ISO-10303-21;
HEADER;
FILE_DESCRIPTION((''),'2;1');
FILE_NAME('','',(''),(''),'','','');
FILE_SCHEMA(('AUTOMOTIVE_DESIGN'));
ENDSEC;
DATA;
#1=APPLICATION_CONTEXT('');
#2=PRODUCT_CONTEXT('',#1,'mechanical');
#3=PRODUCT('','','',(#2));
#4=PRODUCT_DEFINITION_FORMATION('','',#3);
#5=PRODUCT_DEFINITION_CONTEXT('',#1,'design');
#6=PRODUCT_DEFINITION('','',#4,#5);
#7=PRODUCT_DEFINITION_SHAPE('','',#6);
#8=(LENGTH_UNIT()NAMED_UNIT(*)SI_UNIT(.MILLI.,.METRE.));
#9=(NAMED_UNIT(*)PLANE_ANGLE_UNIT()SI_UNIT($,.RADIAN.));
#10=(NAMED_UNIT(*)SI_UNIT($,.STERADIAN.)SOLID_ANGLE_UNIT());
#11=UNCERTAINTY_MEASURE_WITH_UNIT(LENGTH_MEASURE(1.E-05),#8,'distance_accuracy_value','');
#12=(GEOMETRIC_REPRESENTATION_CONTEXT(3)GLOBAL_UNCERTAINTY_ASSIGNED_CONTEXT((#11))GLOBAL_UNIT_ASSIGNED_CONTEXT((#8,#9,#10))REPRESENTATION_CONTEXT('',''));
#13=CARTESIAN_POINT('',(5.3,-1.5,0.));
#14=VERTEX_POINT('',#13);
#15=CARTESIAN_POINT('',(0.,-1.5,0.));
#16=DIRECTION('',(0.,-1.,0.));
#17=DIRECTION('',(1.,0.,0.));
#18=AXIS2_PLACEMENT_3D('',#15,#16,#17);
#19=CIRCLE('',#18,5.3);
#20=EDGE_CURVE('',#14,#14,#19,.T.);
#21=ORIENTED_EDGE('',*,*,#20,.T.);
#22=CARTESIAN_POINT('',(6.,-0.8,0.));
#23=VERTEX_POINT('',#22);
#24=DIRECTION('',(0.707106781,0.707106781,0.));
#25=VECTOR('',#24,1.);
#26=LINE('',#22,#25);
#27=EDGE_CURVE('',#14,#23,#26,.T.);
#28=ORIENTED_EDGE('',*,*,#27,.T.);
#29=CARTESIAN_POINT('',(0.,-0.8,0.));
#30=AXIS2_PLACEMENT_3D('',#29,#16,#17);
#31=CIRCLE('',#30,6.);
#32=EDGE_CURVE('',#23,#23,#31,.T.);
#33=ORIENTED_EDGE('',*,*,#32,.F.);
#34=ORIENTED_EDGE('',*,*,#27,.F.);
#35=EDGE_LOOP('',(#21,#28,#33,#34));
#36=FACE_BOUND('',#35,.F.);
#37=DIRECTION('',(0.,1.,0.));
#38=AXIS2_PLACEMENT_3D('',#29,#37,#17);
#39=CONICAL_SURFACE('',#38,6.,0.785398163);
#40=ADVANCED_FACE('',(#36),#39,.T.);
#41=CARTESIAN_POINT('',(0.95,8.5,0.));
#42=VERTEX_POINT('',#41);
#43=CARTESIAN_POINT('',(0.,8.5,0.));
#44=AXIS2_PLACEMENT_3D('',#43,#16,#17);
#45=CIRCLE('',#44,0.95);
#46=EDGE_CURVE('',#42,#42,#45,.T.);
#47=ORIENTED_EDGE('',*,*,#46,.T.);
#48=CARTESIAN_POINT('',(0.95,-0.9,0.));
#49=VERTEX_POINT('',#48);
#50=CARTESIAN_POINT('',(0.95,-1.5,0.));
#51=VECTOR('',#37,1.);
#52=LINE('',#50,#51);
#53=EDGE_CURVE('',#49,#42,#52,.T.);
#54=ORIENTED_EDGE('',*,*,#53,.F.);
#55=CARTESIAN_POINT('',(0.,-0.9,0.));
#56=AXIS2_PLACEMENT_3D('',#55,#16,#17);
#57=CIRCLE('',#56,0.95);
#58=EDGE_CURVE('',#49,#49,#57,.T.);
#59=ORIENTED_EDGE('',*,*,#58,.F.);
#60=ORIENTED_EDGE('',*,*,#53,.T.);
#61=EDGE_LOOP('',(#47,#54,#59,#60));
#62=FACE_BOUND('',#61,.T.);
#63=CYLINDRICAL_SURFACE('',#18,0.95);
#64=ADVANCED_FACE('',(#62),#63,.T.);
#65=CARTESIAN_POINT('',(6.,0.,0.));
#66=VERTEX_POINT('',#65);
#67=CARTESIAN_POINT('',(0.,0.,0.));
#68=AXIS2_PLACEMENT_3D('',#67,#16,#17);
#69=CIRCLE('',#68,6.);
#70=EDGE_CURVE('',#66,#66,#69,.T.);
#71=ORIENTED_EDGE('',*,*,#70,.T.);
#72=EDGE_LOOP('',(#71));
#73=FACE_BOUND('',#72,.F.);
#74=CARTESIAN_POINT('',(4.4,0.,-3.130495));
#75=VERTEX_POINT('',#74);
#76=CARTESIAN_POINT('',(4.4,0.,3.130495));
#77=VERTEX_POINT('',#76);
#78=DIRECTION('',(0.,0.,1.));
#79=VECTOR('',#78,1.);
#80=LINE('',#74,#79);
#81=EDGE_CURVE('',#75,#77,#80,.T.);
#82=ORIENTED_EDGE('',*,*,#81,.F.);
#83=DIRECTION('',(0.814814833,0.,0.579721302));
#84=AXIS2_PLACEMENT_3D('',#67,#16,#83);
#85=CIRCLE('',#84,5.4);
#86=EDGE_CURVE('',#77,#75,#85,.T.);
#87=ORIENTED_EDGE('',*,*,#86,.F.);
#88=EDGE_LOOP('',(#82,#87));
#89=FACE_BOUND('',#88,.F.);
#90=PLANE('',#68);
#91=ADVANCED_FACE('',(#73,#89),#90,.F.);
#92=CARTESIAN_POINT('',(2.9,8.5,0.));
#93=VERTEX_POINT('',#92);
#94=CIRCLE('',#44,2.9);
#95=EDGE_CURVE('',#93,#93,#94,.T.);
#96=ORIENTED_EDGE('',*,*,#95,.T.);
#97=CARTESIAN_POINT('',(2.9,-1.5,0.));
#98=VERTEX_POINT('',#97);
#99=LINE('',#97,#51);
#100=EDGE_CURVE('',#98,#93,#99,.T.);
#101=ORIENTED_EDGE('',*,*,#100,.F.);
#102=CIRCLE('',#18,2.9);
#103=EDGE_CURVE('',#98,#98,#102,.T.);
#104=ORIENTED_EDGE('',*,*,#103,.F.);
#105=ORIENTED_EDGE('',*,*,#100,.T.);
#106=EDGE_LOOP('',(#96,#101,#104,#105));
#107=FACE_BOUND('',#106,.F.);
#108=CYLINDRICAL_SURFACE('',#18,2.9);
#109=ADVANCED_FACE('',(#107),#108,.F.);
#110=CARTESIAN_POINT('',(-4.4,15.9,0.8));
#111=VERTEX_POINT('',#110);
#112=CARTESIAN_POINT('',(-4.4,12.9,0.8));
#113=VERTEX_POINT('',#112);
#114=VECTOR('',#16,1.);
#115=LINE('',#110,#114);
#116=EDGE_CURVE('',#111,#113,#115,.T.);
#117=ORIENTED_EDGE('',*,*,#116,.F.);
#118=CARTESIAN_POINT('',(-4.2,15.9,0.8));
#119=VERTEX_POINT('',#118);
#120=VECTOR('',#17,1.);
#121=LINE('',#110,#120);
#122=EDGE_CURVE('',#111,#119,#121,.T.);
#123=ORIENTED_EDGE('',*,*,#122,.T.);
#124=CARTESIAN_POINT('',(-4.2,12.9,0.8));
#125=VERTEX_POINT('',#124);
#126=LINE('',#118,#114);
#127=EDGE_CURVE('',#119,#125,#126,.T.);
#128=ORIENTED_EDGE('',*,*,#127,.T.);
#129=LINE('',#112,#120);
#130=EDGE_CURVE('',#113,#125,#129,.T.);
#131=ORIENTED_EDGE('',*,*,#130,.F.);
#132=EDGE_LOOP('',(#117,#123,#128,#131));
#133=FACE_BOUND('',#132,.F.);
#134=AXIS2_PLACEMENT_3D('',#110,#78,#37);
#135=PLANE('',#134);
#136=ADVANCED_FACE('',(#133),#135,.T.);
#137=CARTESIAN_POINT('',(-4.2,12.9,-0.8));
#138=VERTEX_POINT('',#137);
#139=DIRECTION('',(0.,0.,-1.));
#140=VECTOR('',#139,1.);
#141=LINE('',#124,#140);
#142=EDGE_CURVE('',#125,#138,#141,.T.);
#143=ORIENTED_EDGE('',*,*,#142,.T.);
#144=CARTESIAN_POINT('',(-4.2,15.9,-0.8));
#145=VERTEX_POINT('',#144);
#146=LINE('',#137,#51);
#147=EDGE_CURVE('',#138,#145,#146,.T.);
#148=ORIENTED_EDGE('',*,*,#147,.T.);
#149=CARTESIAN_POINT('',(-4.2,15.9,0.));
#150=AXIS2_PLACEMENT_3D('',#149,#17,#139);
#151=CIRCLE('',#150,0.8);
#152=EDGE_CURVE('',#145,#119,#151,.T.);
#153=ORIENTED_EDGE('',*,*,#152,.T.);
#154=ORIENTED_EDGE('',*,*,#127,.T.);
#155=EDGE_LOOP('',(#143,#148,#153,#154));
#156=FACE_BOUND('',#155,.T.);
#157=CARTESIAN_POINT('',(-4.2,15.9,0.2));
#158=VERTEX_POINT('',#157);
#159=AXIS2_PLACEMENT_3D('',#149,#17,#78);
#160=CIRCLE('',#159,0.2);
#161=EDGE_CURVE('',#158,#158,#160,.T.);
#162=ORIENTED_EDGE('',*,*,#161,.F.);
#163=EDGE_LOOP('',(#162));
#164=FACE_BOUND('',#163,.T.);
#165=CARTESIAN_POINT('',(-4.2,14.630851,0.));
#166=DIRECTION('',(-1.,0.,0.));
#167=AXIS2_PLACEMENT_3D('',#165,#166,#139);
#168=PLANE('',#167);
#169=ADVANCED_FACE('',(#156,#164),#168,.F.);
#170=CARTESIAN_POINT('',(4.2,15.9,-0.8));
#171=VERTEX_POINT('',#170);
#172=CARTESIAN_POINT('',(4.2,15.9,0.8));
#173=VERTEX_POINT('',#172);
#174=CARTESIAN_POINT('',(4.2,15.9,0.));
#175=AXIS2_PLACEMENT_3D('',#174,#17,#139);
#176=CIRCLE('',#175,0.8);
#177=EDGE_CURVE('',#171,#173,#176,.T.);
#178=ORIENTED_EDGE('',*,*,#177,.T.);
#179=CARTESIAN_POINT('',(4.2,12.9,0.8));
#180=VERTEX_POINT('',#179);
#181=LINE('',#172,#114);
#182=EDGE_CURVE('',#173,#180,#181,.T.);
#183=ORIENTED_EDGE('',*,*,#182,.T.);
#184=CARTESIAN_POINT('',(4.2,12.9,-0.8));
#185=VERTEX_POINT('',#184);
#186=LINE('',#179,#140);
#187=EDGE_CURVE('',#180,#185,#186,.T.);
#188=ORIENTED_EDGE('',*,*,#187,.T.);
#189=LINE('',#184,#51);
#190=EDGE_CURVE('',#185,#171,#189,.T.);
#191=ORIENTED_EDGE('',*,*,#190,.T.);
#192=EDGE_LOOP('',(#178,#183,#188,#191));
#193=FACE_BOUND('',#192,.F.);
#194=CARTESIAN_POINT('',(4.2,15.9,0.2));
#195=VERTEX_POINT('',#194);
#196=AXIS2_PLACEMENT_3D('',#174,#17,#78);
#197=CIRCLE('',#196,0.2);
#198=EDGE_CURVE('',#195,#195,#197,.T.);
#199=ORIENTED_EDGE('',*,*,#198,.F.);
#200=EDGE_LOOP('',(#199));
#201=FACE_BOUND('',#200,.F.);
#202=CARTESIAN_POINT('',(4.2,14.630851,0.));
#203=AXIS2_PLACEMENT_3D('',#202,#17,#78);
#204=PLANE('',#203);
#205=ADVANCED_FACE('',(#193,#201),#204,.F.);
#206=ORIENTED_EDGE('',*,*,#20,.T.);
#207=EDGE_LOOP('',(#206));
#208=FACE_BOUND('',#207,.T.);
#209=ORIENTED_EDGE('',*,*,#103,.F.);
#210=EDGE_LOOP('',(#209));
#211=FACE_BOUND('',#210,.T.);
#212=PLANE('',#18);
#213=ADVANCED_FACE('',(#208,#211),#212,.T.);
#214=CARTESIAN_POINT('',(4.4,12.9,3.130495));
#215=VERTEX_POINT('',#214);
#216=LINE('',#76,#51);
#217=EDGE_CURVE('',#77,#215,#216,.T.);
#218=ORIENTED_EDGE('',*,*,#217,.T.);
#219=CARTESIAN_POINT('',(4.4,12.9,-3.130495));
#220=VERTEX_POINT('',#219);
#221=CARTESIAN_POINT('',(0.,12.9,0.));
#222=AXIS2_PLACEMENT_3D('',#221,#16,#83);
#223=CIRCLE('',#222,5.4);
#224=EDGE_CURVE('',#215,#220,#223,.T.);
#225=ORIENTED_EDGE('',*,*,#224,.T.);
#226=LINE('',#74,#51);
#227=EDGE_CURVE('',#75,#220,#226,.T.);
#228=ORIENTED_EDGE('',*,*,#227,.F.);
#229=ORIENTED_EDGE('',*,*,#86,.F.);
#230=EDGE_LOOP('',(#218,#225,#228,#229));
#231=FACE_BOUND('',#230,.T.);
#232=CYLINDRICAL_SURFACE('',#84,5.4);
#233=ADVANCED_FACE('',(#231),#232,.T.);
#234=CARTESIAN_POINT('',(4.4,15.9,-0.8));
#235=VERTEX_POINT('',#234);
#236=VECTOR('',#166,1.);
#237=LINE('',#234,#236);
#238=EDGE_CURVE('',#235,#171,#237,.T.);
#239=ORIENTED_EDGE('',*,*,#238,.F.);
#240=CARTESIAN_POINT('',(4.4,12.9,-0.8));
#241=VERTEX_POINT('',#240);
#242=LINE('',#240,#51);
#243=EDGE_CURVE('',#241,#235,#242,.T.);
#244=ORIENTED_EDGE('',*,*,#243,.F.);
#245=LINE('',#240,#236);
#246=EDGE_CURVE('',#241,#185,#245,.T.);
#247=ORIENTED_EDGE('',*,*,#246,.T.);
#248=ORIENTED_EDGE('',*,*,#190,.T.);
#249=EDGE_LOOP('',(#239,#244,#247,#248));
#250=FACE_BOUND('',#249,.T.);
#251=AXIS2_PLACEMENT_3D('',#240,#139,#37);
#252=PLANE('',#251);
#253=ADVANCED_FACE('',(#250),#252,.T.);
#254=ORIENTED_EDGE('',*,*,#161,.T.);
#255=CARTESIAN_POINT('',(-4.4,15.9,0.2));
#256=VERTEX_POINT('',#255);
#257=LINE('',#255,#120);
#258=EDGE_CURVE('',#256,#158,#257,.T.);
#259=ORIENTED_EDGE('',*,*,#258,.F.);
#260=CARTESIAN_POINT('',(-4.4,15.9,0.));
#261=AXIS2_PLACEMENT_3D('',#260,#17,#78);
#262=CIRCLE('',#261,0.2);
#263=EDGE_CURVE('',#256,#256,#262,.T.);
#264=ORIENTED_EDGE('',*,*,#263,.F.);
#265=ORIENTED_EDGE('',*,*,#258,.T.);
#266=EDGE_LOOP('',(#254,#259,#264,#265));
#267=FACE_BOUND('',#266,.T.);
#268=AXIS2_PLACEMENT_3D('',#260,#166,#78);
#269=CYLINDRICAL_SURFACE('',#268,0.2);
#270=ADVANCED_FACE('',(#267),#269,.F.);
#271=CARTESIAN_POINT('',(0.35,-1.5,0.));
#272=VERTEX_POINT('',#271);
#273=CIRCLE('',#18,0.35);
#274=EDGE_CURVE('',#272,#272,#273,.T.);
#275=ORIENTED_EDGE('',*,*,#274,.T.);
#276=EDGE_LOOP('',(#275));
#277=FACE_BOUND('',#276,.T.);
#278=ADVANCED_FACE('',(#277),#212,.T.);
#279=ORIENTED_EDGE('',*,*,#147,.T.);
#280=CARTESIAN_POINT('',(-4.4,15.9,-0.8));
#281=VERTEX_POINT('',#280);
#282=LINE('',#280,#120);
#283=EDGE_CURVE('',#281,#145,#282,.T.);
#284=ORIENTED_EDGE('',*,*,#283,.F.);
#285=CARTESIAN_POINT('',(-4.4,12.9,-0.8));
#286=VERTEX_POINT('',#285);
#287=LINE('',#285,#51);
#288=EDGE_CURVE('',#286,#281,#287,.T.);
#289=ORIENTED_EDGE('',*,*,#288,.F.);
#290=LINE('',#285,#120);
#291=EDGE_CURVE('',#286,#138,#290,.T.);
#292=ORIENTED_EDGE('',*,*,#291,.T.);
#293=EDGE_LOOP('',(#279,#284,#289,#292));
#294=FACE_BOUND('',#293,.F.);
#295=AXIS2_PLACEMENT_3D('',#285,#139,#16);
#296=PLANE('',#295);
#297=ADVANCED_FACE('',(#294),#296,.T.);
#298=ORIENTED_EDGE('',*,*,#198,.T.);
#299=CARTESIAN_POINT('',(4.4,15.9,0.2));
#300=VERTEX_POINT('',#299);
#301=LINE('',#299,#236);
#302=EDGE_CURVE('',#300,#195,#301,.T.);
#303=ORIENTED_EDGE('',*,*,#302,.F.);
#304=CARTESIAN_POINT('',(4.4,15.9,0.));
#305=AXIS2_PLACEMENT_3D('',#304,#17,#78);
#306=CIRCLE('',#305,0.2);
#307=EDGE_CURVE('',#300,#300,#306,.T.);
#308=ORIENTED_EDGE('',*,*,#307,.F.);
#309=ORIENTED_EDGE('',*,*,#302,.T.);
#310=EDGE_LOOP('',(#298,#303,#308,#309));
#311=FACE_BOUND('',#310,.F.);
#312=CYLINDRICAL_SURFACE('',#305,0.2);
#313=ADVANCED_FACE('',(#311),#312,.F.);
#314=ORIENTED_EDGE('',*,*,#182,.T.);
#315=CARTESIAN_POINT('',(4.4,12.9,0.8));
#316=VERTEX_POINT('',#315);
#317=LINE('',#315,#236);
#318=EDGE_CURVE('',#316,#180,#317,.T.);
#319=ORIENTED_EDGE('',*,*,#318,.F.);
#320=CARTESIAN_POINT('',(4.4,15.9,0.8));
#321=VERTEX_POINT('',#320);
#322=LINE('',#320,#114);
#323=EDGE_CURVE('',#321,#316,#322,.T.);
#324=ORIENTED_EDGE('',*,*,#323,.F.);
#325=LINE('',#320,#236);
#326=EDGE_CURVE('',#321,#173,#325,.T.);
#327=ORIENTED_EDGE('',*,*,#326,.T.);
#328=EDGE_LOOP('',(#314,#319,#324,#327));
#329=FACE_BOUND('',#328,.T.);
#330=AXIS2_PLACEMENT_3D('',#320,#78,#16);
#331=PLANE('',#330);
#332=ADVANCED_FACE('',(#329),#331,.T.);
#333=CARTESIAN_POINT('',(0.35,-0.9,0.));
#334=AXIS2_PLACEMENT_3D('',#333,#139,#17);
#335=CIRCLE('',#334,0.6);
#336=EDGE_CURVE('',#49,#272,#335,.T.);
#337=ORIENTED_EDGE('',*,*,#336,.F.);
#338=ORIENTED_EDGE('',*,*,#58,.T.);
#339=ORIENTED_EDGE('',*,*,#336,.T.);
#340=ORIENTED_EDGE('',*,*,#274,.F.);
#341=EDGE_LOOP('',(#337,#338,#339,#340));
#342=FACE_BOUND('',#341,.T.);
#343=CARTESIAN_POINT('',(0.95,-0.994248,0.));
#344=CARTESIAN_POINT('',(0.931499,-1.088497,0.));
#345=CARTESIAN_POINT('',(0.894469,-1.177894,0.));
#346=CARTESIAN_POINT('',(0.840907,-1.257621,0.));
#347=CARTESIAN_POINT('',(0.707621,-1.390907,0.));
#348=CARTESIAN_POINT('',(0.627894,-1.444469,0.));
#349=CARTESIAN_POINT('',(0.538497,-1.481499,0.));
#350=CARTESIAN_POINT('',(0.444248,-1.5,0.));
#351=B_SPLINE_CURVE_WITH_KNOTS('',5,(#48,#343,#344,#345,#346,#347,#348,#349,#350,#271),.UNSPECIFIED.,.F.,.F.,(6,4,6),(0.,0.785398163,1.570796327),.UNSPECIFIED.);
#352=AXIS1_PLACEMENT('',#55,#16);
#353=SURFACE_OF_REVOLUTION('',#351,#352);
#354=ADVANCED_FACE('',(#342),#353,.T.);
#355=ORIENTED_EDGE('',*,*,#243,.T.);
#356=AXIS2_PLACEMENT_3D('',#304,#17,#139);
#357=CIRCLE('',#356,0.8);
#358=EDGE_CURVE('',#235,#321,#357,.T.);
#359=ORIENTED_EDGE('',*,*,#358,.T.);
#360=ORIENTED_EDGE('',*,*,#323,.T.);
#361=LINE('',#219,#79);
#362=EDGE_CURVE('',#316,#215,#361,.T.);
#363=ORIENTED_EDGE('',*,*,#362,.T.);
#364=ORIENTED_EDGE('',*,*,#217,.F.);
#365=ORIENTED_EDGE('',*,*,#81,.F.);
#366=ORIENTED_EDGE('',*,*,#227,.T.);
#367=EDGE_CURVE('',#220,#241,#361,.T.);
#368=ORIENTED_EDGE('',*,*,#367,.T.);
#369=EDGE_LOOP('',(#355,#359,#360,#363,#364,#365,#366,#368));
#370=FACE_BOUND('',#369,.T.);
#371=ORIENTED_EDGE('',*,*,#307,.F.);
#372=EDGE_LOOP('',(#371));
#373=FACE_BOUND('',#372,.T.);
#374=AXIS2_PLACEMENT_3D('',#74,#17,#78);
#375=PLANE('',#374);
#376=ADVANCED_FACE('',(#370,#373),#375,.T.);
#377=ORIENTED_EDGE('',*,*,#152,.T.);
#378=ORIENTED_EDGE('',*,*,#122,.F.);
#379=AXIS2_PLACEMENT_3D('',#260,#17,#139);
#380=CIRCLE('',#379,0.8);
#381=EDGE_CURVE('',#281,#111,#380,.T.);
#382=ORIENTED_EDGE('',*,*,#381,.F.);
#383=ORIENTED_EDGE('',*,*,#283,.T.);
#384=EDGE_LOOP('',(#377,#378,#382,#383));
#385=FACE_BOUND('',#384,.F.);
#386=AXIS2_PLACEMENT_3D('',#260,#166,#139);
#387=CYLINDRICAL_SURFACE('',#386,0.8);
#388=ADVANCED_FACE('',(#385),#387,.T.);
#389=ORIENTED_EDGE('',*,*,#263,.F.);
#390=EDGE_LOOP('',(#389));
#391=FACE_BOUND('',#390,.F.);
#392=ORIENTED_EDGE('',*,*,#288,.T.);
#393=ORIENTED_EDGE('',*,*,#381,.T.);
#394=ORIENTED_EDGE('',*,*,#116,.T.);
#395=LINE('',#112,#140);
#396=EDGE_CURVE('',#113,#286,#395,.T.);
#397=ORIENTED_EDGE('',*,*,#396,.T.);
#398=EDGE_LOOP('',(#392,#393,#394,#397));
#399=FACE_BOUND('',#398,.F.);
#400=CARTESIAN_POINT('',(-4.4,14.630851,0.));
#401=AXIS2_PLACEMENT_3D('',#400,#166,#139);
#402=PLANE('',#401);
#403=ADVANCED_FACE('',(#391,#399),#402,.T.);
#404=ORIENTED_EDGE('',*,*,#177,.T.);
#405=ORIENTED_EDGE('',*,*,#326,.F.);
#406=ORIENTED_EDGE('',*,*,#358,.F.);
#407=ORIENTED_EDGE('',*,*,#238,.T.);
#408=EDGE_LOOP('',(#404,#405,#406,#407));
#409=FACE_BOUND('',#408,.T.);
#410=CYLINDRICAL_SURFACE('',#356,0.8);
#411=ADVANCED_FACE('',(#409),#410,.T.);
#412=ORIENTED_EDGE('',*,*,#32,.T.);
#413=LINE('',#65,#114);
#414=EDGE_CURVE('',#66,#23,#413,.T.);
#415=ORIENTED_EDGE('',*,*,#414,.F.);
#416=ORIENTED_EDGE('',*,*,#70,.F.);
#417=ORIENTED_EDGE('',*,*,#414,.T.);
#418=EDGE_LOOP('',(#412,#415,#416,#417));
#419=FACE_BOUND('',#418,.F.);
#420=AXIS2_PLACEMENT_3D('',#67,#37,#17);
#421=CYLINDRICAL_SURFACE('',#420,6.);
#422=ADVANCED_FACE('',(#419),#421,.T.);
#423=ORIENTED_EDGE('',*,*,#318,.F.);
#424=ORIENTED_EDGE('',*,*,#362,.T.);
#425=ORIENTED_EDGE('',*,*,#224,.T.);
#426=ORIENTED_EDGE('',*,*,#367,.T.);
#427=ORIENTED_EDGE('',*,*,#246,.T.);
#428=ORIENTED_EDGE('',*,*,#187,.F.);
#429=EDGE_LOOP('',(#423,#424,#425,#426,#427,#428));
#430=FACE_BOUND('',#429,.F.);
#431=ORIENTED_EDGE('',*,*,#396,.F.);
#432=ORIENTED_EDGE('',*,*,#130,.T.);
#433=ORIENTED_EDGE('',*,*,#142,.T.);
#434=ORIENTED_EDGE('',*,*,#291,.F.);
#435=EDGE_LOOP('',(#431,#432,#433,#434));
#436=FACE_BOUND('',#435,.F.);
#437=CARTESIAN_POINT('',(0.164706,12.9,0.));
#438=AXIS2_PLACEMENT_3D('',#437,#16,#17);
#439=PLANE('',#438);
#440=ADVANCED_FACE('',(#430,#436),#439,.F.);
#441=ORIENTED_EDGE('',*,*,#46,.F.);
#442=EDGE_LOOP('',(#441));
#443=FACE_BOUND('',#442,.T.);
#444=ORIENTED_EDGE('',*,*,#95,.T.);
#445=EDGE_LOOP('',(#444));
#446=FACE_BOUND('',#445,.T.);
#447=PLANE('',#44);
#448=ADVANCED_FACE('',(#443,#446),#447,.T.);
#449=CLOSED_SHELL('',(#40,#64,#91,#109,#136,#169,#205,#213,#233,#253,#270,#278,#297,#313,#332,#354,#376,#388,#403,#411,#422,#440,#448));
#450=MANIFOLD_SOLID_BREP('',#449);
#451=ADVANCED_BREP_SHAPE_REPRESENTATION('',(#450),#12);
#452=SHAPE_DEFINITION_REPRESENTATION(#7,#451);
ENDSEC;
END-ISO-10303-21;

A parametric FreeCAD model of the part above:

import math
import FreeCAD as App
import Part
import Sketcher
Q = App.Units.Quantity


def edges_at(feature, points):
    """Names of the edges that pass closest to the given points."""
    edges = feature.Shape.Edges
    near = lambda p: min(range(len(edges)), key=lambda i: edges[i].distToShape(Part.Vertex(*p))[0])
    return sorted({f"Edge{near(p) + 1}" for p in points})

doc = App.newDocument("Part")
params = doc.addObject("Spreadsheet::Sheet", "Params")
for row, (alias, value) in enumerate([
    ("sketch1_radius", "5.4 mm"),
    ("pad1_length", "12.9 mm"),
    ("sketch2_diameter", "12 mm"),
    ("pad2_length", "1.5 mm"),
    ("sketch3_diameter", "5.8 mm"),
    ("sketch3_diameter2", "1.9 mm"),
    ("pocket1_length", "10 mm"),
    ("fillet_radius", "0.6 mm"),
    ("chamfer_size", "0.7 mm"),
    ("sketch4_diameter", "0.4 mm"),
    ("sketch4_radius", "0.8 mm"),
    ("sketch4_width", "3 mm"),
    ("pad3_length", "0.2 mm"),
], start=1):
    params.set(f"A{row}", alias)
    params.set(f"B{row}", "=" + value)
    params.setAlias(f"B{row}", alias)

body = doc.addObject("PartDesign::Body", "Body")

sketch1 = body.newObject("Sketcher::SketchObject", "Sketch")
sketch1.AttachmentSupport = (doc.getObject("XZ_Plane"), [""])
sketch1.MapMode = "FlatFace"
sketch1.addGeometry([
    Part.LineSegment(App.Vector(4.4, -3.130495, 0), App.Vector(4.4, 3.130495, 0)),
    Part.ArcOfCircle(Part.Circle(App.Vector(0, 0, 0), App.Vector(0, 0, 1), 5.4), math.radians(35.430943), math.radians(324.569057)),
], False)
sketch1.addConstraint([
    Sketcher.Constraint("Coincident", 0, 1, 1, 2),
    Sketcher.Constraint("Coincident", 1, 1, 0, 2),
    Sketcher.Constraint("Vertical", 0),
    Sketcher.Constraint("Coincident", 1, 3, -1, 1),
    Sketcher.Constraint("Radius", 1, Q("5.4 mm")),
    Sketcher.Constraint("DistanceX", -1, 1, 0, 1, Q("4.4 mm")),
])
sketch1.setExpression("Constraints[4]", "Params.sketch1_radius")
pad1 = body.newObject("PartDesign::Pad", "Pad")
pad1.Profile = sketch1
pad1.setExpression("Length", "Params.pad1_length")
pad1.Reversed = True

sketch2 = body.newObject("Sketcher::SketchObject", "Sketch001")
sketch2.AttachmentSupport = (doc.getObject("XZ_Plane"), [""])
sketch2.MapMode = "FlatFace"
sketch2.addGeometry(Part.Circle(App.Vector(0, 0, 0), App.Vector(0, 0, 1), 6), False)
sketch2.addConstraint([
    Sketcher.Constraint("Coincident", 0, 3, -1, 1),
    Sketcher.Constraint("Diameter", 0, Q("12 mm")),
])
sketch2.setExpression("Constraints[1]", "Params.sketch2_diameter")
pad2 = body.newObject("PartDesign::Pad", "Pad001")
pad2.Profile = sketch2
pad2.setExpression("Length", "Params.pad2_length")

sketch3 = body.newObject("Sketcher::SketchObject", "Sketch002")
sketch3.AttachmentSupport = (doc.getObject("XZ_Plane"), [""])
sketch3.MapMode = "FlatFace"
sketch3.AttachmentOffset = App.Placement(App.Vector(0, 0, 1.5), App.Rotation())
sketch3.addGeometry([
    Part.Circle(App.Vector(0, 0, 0), App.Vector(0, 0, 1), 2.9),
    Part.Circle(App.Vector(0, 0, 0), App.Vector(0, 0, 1), 0.95),
], False)
sketch3.addConstraint([
    Sketcher.Constraint("Coincident", 0, 3, -1, 1),
    Sketcher.Constraint("Coincident", 1, 3, -1, 1),
    Sketcher.Constraint("Diameter", 0, Q("5.8 mm")),
    Sketcher.Constraint("Diameter", 1, Q("1.9 mm")),
])
sketch3.setExpression("Constraints[2]", "Params.sketch3_diameter")
sketch3.setExpression("Constraints[3]", "Params.sketch3_diameter2")
pocket1 = body.newObject("PartDesign::Pocket", "Pocket")
pocket1.Profile = sketch3
pocket1.setExpression("Length", "Params.pocket1_length")
doc.recompute()

fillet = body.newObject("PartDesign::Fillet", "Fillet")
fillet.Base = (pocket1, edges_at(pocket1, [(-0.95, -1.5, 0)]))
fillet.setExpression("Radius", "Params.fillet_radius")
doc.recompute()

chamfer = body.newObject("PartDesign::Chamfer", "Chamfer")
chamfer.Base = (fillet, edges_at(fillet, [(-6, -1.5, 0)]))
chamfer.setExpression("Size", "Params.chamfer_size")

sketch4 = body.newObject("Sketcher::SketchObject", "Sketch003")
sketch4.AttachmentSupport = (doc.getObject("YZ_Plane"), [""])
sketch4.MapMode = "FlatFace"
sketch4.AttachmentOffset = App.Placement(App.Vector(0, 0, 4.4), App.Rotation())
sketch4.addGeometry([
    Part.LineSegment(App.Vector(12.9, 0.8, 0), App.Vector(12.9, -0.8, 0)),
    Part.LineSegment(App.Vector(12.9, -0.8, 0), App.Vector(15.9, -0.8, 0)),
    Part.ArcOfCircle(Part.Circle(App.Vector(15.9, 0, 0), App.Vector(0, 0, 1), 0.8), math.radians(-90), math.radians(90)),
    Part.LineSegment(App.Vector(15.9, 0.8, 0), App.Vector(12.9, 0.8, 0)),
    Part.Circle(App.Vector(15.9, 0, 0), App.Vector(0, 0, 1), 0.2),
], False)
sketch4.addConstraint([
    Sketcher.Constraint("Coincident", 0, 2, 1, 1),
    Sketcher.Constraint("Tangent", 1, 2, 2, 1),
    Sketcher.Constraint("Tangent", 2, 2, 3, 1),
    Sketcher.Constraint("Coincident", 3, 2, 0, 1),
    Sketcher.Constraint("Vertical", 0),
    Sketcher.Constraint("Horizontal", 1),
    Sketcher.Constraint("Horizontal", 3),
    Sketcher.Constraint("Coincident", 4, 3, 2, 3),
    Sketcher.Constraint("PointOnObject", 2, 3, -1),
    Sketcher.Constraint("Diameter", 4, Q("0.4 mm")),
    Sketcher.Constraint("Radius", 2, Q("0.8 mm")),
    Sketcher.Constraint("DistanceX", 1, 1, 1, 2, Q("3 mm")),
    Sketcher.Constraint("DistanceX", -1, 1, 2, 3, Q("15.9 mm")),
])
sketch4.setExpression("Constraints[9]", "Params.sketch4_diameter")
sketch4.setExpression("Constraints[10]", "Params.sketch4_radius")
sketch4.setExpression("Constraints[11]", "Params.sketch4_width")
pad3 = body.newObject("PartDesign::Pad", "Pad002")
pad3.Profile = sketch4
pad3.setExpression("Length", "Params.pad3_length")
pad3.Reversed = True
doc.recompute()

mirrored = body.newObject("PartDesign::Mirrored", "Mirrored")
mirrored.Originals = [pad3]
mirrored.MirrorPlane = (doc.getObject("YZ_Plane"), [""])
body.Tip = mirrored

doc.recompute()
